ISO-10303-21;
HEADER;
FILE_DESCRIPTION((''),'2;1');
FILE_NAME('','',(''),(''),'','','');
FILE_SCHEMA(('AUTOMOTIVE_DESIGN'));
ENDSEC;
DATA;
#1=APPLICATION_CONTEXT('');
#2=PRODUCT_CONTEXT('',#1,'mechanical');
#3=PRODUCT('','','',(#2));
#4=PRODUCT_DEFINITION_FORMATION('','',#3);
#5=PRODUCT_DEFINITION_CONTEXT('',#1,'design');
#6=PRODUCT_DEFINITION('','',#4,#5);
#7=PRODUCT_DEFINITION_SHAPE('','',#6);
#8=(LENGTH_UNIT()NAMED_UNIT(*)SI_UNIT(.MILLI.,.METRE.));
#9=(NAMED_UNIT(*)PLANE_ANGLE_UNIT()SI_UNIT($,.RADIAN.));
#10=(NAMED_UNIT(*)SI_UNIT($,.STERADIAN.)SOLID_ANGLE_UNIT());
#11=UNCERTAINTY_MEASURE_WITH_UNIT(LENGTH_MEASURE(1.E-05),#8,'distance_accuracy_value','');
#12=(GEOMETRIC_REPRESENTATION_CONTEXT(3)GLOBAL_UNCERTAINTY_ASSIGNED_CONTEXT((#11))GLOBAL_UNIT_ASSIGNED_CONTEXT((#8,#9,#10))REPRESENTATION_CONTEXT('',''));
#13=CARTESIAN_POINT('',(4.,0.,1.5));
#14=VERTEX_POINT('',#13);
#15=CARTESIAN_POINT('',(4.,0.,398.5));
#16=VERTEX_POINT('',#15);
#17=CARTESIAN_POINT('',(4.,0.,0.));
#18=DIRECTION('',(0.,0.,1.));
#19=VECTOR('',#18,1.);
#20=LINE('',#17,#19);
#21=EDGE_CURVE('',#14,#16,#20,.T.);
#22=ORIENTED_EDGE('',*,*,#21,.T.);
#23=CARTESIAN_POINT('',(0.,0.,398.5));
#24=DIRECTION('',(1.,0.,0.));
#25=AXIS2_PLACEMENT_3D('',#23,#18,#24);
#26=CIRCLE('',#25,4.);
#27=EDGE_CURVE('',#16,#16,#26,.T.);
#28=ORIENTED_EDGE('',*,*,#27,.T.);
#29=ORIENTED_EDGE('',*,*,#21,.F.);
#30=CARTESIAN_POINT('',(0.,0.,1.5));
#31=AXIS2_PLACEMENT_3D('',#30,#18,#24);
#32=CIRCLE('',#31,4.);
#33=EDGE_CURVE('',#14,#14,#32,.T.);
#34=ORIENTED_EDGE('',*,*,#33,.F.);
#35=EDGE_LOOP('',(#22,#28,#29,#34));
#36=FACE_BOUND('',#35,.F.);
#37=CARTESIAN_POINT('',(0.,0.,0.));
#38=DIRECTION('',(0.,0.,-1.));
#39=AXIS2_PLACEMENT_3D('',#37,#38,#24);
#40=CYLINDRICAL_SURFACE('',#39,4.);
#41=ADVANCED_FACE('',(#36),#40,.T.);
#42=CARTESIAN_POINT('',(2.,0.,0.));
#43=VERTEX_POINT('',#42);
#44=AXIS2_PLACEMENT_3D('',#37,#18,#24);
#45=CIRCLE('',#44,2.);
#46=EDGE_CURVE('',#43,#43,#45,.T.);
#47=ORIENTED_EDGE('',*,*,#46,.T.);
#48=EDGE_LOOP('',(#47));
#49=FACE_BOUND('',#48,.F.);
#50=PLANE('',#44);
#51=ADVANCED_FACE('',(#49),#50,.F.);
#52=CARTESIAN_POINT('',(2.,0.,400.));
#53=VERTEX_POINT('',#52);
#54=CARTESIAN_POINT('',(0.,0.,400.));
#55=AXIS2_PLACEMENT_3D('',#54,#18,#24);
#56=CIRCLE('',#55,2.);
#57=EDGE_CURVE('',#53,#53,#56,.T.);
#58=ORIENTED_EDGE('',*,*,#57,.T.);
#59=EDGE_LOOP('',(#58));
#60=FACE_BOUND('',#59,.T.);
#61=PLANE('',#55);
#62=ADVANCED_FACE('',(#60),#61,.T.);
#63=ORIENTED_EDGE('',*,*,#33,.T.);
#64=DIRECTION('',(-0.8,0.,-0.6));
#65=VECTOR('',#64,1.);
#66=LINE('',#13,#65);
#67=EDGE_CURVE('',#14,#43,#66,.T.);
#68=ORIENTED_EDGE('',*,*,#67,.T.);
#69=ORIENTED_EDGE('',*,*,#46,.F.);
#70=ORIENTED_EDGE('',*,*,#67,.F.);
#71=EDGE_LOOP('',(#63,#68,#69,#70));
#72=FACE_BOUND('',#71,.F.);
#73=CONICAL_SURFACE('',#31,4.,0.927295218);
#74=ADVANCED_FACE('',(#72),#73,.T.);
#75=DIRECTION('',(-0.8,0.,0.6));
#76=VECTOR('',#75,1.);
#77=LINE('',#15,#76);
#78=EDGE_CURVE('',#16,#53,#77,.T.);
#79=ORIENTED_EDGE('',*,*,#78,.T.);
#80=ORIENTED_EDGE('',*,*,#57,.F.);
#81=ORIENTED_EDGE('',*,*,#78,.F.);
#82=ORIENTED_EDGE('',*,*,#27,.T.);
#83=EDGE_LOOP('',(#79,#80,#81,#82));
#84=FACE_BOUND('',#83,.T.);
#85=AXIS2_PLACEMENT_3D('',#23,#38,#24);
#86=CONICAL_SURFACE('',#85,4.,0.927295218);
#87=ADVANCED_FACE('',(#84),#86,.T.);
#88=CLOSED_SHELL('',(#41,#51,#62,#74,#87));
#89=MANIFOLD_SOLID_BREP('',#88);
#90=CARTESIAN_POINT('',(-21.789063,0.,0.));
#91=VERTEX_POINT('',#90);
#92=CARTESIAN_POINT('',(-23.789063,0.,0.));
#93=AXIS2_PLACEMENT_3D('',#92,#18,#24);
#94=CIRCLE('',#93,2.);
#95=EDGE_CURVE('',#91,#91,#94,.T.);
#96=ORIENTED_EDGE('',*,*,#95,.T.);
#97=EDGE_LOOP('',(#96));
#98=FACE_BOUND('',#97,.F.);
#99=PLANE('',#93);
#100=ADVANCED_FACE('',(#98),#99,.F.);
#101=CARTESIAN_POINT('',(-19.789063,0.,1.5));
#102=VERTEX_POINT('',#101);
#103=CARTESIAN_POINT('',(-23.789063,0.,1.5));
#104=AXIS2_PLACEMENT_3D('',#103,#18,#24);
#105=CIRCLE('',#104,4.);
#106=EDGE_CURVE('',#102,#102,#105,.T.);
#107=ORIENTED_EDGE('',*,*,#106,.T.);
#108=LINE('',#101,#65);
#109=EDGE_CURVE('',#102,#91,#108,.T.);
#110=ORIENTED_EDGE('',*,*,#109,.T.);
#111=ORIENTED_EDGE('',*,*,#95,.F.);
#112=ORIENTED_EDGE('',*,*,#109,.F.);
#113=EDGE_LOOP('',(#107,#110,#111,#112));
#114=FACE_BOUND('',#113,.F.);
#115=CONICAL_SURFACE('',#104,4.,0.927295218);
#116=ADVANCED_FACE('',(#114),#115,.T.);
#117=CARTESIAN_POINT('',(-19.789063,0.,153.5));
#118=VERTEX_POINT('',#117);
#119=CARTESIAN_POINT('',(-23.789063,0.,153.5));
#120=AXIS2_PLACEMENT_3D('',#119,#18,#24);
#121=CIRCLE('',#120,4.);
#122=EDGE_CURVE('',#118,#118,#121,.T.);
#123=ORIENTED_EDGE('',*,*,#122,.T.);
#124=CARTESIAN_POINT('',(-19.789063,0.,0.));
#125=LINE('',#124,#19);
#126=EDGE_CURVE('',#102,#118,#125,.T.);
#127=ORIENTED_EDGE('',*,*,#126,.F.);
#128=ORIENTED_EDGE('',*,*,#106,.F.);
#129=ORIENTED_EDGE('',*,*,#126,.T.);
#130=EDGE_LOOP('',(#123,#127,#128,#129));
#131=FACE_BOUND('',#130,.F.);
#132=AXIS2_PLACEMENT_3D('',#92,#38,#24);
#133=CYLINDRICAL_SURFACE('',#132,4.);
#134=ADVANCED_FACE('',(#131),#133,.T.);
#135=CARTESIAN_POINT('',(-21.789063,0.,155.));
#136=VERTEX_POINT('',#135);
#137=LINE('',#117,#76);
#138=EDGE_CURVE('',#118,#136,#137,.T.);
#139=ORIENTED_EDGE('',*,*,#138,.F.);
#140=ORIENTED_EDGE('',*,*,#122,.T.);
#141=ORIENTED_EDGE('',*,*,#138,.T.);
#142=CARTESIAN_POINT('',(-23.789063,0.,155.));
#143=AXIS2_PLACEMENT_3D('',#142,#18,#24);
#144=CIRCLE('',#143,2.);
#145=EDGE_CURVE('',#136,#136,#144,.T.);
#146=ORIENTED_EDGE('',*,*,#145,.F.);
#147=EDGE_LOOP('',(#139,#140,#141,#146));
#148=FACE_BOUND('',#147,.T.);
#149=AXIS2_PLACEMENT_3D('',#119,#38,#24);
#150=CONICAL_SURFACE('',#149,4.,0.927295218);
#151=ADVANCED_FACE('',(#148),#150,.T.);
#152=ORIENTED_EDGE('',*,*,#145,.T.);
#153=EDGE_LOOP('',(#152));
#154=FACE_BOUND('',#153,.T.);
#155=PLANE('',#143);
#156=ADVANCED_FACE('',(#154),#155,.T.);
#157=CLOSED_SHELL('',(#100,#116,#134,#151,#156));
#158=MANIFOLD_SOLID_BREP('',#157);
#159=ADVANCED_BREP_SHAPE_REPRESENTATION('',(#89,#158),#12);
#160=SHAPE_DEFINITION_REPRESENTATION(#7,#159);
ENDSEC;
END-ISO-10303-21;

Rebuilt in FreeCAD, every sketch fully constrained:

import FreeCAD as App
import Part
import Sketcher

V = App.Vector
Q = App.Units.Quantity


def edges_at(feature, points):
    """Names of the edges that pass closest to the given points."""
    edges = feature.Shape.Edges
    near = lambda p: min(range(len(edges)), key=lambda i: edges[i].distToShape(Part.Vertex(*p))[0])
    return sorted({f"Edge{near(p) + 1}" for p in points})

doc = App.newDocument("Part")
params = doc.addObject("Spreadsheet::Sheet", "Params")
for row, (alias, value) in enumerate([
    ("sketch1_diameter", "8 mm"),
    ("pad1_length", "400 mm"),
    ("chamfer_size", "1.5 mm"),
    ("chamfer_size2", "2 mm"),
    ("sketch2_diameter", "8 mm"),
    ("pad2_length", "155 mm"),
    ("chamfer2_size", "1.5 mm"),
    ("chamfer2_size2", "2 mm"),
], start=1):
    params.set(f"A{row}", alias)
    params.set(f"B{row}", "=" + value)
    params.setAlias(f"B{row}", alias)

body = doc.addObject("PartDesign::Body", "Body")

sketch1 = body.newObject("Sketcher::SketchObject", "Sketch")
sketch1.AttachmentSupport = (doc.getObject("XY_Plane"), [""])
sketch1.MapMode = "FlatFace"
sketch1.addGeometry(Part.Circle(V(0, 0, 0), V(0, 0, 1), 4), False)
sketch1.addConstraint([
    Sketcher.Constraint("Coincident", 0, 3, -1, 1),
    Sketcher.Constraint("Diameter", 0, Q("8 mm")),
])
sketch1.setExpression("Constraints[1]", "Params.sketch1_diameter")
pad1 = body.newObject("PartDesign::Pad", "Pad")
pad1.Profile = sketch1
pad1.setExpression("Length", "Params.pad1_length")
doc.recompute()

chamfer = body.newObject("PartDesign::Chamfer", "Chamfer")
chamfer.Base = (pad1, edges_at(pad1, [(-4, 0, 0), (-4, 0, 400)]))
chamfer.ChamferType = "Two distances"
chamfer.setExpression("Size", "Params.chamfer_size")
chamfer.setExpression("Size2", "Params.chamfer_size2")
body2 = doc.addObject("PartDesign::Body", "Body001")

sketch2 = body2.newObject("Sketcher::SketchObject", "Sketch001")
sketch2.AttachmentSupport = (doc.getObject("XY_Plane001"), [""])
sketch2.MapMode = "FlatFace"
sketch2.addGeometry(Part.Circle(V(-23.8, 0, 0), V(0, 0, 1), 4), False)
sketch2.addConstraint([
    Sketcher.Constraint("PointOnObject", 0, 3, -1),
    Sketcher.Constraint("Diameter", 0, Q("8 mm")),
    Sketcher.Constraint("DistanceX", 0, 3, -1, 1, Q("23.789063 mm")),
])
sketch2.setExpression("Constraints[1]", "Params.sketch2_diameter")
pad2 = body2.newObject("PartDesign::Pad", "Pad001")
pad2.Profile = sketch2
pad2.setExpression("Length", "Params.pad2_length")
doc.recompute()

chamfer2 = body2.newObject("PartDesign::Chamfer", "Chamfer001")
chamfer2.Base = (pad2, edges_at(pad2, [(-27.789, 0, 155), (-27.789, 0, 0)]))
chamfer2.ChamferType = "Two distances"
chamfer2.setExpression("Size", "Params.chamfer2_size")
chamfer2.setExpression("Size2", "Params.chamfer2_size2")

doc.recompute()
